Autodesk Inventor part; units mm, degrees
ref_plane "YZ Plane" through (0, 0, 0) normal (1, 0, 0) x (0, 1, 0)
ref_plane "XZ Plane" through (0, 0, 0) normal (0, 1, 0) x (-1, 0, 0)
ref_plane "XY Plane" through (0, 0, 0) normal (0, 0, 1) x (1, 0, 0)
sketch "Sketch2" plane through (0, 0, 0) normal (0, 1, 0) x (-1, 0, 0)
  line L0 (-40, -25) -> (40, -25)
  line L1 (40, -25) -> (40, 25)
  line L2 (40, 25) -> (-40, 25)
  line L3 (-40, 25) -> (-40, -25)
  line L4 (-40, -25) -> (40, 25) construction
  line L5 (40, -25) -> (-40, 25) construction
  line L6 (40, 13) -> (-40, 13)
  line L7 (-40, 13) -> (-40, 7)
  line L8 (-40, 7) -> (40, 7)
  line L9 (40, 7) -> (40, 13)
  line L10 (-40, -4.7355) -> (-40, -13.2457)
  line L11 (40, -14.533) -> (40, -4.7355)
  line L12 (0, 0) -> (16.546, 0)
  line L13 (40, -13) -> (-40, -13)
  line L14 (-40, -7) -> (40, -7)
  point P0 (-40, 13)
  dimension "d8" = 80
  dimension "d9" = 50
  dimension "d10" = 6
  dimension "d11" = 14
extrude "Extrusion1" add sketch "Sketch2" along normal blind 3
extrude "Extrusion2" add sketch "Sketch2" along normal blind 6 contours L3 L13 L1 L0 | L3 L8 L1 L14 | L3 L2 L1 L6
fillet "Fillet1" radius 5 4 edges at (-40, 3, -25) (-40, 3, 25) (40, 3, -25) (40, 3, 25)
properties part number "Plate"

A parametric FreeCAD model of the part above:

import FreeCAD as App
import Part
import Sketcher

V = App.Vector


def edges_at(feature, points):
    """Names of the edges that pass closest to the given points."""
    edges = feature.Shape.Edges
    near = lambda p: min(range(len(edges)), key=lambda i: edges[i].distToShape(Part.Vertex(*p))[0])
    return sorted({f"Edge{near(p) + 1}" for p in points})

doc = App.newDocument("Part")
body = doc.addObject("PartDesign::Body", "Body")

# Sketch on XZ plane
sketch1 = doc.addObject("Sketcher::SketchObject", "Sketch")
body.addObject(sketch1)
sketch1.AttachmentSupport = (doc.XZ_Plane, [""])
sketch1.MapMode = "FlatFace"
sketch1.addGeometry(Part.LineSegment(V(40, -25, 0), V(-40, -25, 0)), False)
sketch1.addGeometry(Part.LineSegment(V(-40, -25, 0), V(-40, 25, 0)), False)
sketch1.addGeometry(Part.LineSegment(V(-40, 25, 0), V(40, 25, 0)), False)
sketch1.addGeometry(Part.LineSegment(V(40, 25, 0), V(40, -25, 0)), False)
sketch1.addConstraint(Sketcher.Constraint("Coincident", 0, 2, 1, 1))
sketch1.addConstraint(Sketcher.Constraint("Coincident", 1, 2, 2, 1))
sketch1.addConstraint(Sketcher.Constraint("Coincident", 2, 2, 3, 1))
sketch1.addConstraint(Sketcher.Constraint("Coincident", 3, 2, 0, 1))
sketch1.addConstraint(Sketcher.Constraint("Horizontal", 0))
sketch1.addConstraint(Sketcher.Constraint("Vertical", 1))
sketch1.addConstraint(Sketcher.Constraint("Horizontal", 2))
sketch1.addConstraint(Sketcher.Constraint("Vertical", 3))
sketch1.addConstraint(Sketcher.Constraint("Symmetric", 0, 2, 2, 2, -1, 1))
sketch1.addConstraint(Sketcher.Constraint("DistanceX", 0, 2, 0, 1, 80.0))
sketch1.addConstraint(Sketcher.Constraint("DistanceY", 1, 1, 1, 2, 50.0))
pad1 = doc.addObject("PartDesign::Pad", "Pad")
body.addObject(pad1)
pad1.Profile = sketch1
pad1.Length = 3
pad1.Reversed = True

# Sketch on XZ plane
sketch2 = doc.addObject("Sketcher::SketchObject", "Sketch001")
body.addObject(sketch2)
sketch2.AttachmentSupport = (doc.XZ_Plane, [""])
sketch2.MapMode = "FlatFace"
sketch2.addGeometry(Part.LineSegment(V(40, -13, 0), V(40, -25, 0)), False)
sketch2.addGeometry(Part.LineSegment(V(40, -25, 0), V(-40, -25, 0)), False)
sketch2.addGeometry(Part.LineSegment(V(-40, -25, 0), V(-40, -13, 0)), False)
sketch2.addGeometry(Part.LineSegment(V(-40, -13, 0), V(40, -13, 0)), False)
sketch2.addGeometry(Part.LineSegment(V(40, 7, 0), V(40, -7, 0)), False)
sketch2.addGeometry(Part.LineSegment(V(40, -7, 0), V(-40, -7, 0)), False)
sketch2.addGeometry(Part.LineSegment(V(-40, -7, 0), V(-40, 7, 0)), False)
sketch2.addGeometry(Part.LineSegment(V(-40, 7, 0), V(40, 7, 0)), False)
sketch2.addGeometry(Part.LineSegment(V(40, 25, 0), V(40, 13, 0)), False)
sketch2.addGeometry(Part.LineSegment(V(40, 13, 0), V(-40, 13, 0)), False)
sketch2.addGeometry(Part.LineSegment(V(-40, 13, 0), V(-40, 25, 0)), False)
sketch2.addGeometry(Part.LineSegment(V(-40, 25, 0), V(40, 25, 0)), False)
sketch2.addConstraint(Sketcher.Constraint("Coincident", 0, 2, 1, 1))
sketch2.addConstraint(Sketcher.Constraint("Coincident", 1, 2, 2, 1))
sketch2.addConstraint(Sketcher.Constraint("Coincident", 2, 2, 3, 1))
sketch2.addConstraint(Sketcher.Constraint("Coincident", 3, 2, 0, 1))
sketch2.addConstraint(Sketcher.Constraint("Coincident", 4, 2, 5, 1))
sketch2.addConstraint(Sketcher.Constraint("Coincident", 5, 2, 6, 1))
sketch2.addConstraint(Sketcher.Constraint("Coincident", 6, 2, 7, 1))
sketch2.addConstraint(Sketcher.Constraint("Coincident", 7, 2, 4, 1))
sketch2.addConstraint(Sketcher.Constraint("Coincident", 8, 2, 9, 1))
sketch2.addConstraint(Sketcher.Constraint("Coincident", 9, 2, 10, 1))
sketch2.addConstraint(Sketcher.Constraint("Coincident", 10, 2, 11, 1))
sketch2.addConstraint(Sketcher.Constraint("Coincident", 11, 2, 8, 1))
sketch2.addConstraint(Sketcher.Constraint("Vertical", 0))
sketch2.addConstraint(Sketcher.Constraint("Horizontal", 1))
sketch2.addConstraint(Sketcher.Constraint("Vertical", 2))
sketch2.addConstraint(Sketcher.Constraint("Horizontal", 3))
sketch2.addConstraint(Sketcher.Constraint("Vertical", 4))
sketch2.addConstraint(Sketcher.Constraint("Horizontal", 5))
sketch2.addConstraint(Sketcher.Constraint("Vertical", 6))
sketch2.addConstraint(Sketcher.Constraint("Horizontal", 7))
sketch2.addConstraint(Sketcher.Constraint("Vertical", 8))
sketch2.addConstraint(Sketcher.Constraint("Horizontal", 9))
sketch2.addConstraint(Sketcher.Constraint("Vertical", 10))
sketch2.addConstraint(Sketcher.Constraint("Horizontal", 11))
sketch2.addConstraint(Sketcher.Constraint("Symmetric", 4, 2, 6, 2, -1, 1))
sketch2.addConstraint(Sketcher.Constraint("Symmetric", 2, 2, 8, 2, -1, 1))
sketch2.addConstraint(Sketcher.Constraint("Symmetric", 0, 2, 10, 2, -1, 1))
sketch2.addConstraint(Sketcher.Constraint("Vertical", 3, 2, 4, 2))
sketch2.addConstraint(Sketcher.Constraint("Vertical", 2, 2, 5, 2))
sketch2.addConstraint(Sketcher.Constraint("DistanceX", 1, 2, 1, 1, 80.0))
sketch2.addConstraint(Sketcher.Constraint("DistanceY", 4, 2, 4, 1, 14.0))
sketch2.addConstraint(Sketcher.Constraint("DistanceY", 3, 2, 4, 2, 6.0))
sketch2.addConstraint(Sketcher.Constraint("DistanceY", 1, 2, 10, 2, 50.0))
pad2 = doc.addObject("PartDesign::Pad", "Pad001")
body.addObject(pad2)
pad2.Profile = sketch2
pad2.Length = 6
pad2.Reversed = True
doc.recompute()

fillet = doc.addObject("PartDesign::Fillet", "Fillet")
body.addObject(fillet)
fillet.Base = (pad2, edges_at(pad2, [
    (-40, 3, -25),
    (-40, 3, 25),
    (40, 3, -25),
    (40, 3, 25),
]))
fillet.Radius = 5

doc.recompute()
